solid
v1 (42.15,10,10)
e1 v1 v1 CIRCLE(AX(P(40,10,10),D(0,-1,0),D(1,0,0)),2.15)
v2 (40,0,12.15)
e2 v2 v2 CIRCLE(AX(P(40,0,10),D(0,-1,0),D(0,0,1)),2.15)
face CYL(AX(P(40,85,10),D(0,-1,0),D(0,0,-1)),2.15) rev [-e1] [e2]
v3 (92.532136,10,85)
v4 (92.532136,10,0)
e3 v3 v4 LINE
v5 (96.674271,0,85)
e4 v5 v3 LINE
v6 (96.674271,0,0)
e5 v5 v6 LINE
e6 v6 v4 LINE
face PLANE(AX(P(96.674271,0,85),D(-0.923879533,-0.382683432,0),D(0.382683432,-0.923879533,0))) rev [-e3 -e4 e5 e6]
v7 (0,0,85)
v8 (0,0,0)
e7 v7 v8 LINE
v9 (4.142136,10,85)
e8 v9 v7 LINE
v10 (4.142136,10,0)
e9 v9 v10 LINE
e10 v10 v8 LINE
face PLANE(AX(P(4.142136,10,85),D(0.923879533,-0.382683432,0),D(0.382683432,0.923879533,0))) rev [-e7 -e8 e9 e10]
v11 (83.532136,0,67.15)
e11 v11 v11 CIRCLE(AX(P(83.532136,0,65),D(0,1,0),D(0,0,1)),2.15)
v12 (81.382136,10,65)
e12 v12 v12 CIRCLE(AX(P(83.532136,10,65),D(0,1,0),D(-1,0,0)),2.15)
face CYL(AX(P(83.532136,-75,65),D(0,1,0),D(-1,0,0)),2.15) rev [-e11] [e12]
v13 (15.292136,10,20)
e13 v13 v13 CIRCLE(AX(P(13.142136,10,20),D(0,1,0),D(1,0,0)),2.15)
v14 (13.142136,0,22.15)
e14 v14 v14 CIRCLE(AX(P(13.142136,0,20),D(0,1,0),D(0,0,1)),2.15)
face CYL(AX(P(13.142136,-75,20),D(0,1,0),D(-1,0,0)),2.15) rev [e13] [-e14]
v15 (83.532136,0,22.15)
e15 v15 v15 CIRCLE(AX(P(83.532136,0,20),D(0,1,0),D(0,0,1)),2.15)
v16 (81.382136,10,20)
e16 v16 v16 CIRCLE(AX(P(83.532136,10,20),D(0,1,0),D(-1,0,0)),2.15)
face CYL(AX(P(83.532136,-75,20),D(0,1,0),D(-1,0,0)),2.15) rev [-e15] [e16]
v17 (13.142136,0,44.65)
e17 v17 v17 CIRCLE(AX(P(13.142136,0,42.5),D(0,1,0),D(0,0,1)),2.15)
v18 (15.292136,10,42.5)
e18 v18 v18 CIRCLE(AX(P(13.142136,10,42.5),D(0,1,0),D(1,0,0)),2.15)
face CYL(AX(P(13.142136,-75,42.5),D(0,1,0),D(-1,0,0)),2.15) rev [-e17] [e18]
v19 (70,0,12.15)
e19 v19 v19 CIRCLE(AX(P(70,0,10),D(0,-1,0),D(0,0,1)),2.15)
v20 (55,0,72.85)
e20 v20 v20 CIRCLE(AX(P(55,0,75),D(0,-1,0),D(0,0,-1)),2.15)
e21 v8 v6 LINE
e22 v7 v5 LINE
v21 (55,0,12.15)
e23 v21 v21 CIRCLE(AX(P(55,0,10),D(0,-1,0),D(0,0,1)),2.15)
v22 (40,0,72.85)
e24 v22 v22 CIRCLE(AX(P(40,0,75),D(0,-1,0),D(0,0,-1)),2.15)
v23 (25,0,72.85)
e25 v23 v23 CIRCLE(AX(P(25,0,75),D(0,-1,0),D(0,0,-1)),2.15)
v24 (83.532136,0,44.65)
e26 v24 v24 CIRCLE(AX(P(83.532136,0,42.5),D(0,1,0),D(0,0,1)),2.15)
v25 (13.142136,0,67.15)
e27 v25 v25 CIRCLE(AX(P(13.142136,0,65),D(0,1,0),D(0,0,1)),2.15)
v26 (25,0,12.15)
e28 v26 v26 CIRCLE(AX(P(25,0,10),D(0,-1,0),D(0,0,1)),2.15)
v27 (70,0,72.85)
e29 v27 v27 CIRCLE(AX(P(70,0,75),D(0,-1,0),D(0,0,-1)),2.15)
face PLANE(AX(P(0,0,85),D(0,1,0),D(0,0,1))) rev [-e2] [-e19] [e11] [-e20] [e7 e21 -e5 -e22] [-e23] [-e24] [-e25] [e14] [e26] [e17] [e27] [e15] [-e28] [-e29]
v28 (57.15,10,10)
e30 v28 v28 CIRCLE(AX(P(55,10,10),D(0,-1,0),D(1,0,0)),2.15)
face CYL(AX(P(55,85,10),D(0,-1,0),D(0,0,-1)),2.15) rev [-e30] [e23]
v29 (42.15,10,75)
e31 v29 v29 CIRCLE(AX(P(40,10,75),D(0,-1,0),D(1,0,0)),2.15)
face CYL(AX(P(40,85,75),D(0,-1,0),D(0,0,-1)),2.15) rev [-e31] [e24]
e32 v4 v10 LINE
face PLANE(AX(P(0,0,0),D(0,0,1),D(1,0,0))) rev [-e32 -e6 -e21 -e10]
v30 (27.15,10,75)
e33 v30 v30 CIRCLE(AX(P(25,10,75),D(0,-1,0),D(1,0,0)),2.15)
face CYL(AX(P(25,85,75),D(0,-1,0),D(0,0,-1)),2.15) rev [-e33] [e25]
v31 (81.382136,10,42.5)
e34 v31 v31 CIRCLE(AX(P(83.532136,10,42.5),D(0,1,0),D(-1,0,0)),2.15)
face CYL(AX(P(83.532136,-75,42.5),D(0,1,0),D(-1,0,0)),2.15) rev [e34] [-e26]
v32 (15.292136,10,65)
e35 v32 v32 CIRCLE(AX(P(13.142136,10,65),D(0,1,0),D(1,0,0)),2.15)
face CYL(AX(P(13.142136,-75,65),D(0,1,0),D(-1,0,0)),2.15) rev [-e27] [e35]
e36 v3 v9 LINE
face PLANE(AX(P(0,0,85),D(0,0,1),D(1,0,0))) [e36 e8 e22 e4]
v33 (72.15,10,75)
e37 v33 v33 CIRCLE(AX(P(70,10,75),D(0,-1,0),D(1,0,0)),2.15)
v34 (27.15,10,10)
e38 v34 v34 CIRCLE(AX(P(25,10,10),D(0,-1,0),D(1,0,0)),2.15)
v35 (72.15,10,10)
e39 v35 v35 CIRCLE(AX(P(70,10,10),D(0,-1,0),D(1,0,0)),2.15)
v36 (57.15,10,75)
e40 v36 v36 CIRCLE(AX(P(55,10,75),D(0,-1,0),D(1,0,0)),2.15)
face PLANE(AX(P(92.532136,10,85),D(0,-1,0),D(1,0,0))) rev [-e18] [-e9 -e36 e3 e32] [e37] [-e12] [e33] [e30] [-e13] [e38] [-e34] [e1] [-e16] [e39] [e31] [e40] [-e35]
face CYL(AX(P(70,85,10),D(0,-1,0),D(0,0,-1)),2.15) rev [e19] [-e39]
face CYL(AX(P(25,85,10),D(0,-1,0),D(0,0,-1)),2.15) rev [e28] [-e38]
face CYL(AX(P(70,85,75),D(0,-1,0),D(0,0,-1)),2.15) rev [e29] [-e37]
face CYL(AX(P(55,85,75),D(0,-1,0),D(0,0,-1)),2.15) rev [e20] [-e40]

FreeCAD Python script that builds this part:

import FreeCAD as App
import Part
import Sketcher
from FreeCAD import Vector
Q = App.Units.Quantity


def add_polygon(sketch, points):
    """Adds a closed chain of lines whose ends are joined by coincident constraints."""
    first, n = sketch.GeometryCount, len(points)
    for a, b in zip(points, points[1:] + points[:1]):
        sketch.addGeometry(Part.LineSegment(App.Vector(*a, 0), App.Vector(*b, 0)), False)
    for i in range(n):
        sketch.addConstraint(Sketcher.Constraint("Coincident", first + i, 2, first + (i + 1) % n, 1))

doc = App.newDocument("Part")
body = doc.addObject("PartDesign::Body", "Body")

# Sketch on XY plane
sketch1 = body.newObject("Sketcher::SketchObject", "Sketch")
sketch1.AttachmentSupport = (doc.getObject("XY_Plane"), [""])
sketch1.MapMode = "FlatFace"
add_polygon(sketch1, [(0, 0), (97, 0), (93, 10), (4, 10)])  # lines 0-3
sketch1.addConstraint([
    Sketcher.Constraint("Horizontal", 0),
    Sketcher.Constraint("Horizontal", 2),
    Sketcher.Constraint("Coincident", 3, 2, -1, 1),
    Sketcher.Constraint("Equal", 1, 3),
    Sketcher.Constraint("DistanceY", -1, 1, 1, 2, Q("10 mm")),
    Sketcher.Constraint("Angle", 1, Q("112.5 deg")),
    Sketcher.Constraint("DistanceX", 2, 2, 2, 1, Q("88.39 mm")),
])
pad1 = body.newObject("PartDesign::Pad", "Pad")
pad1.Profile = sketch1
pad1.Length = 85

# Sketch on XZ plane
sketch2 = body.newObject("Sketcher::SketchObject", "Sketch001")
sketch2.AttachmentSupport = (doc.getObject("XZ_Plane"), [""])
sketch2.MapMode = "FlatFace"
sketch2.addGeometry([
    Part.Circle(Vector(25, 75, 0), Vector(0, 0, 1), 2.1),
    Part.Circle(Vector(25, 10, 0), Vector(0, 0, 1), 2.1),
], False)
sketch2.addConstraint([
    Sketcher.Constraint("Equal", 0, 1),
    Sketcher.Constraint("Vertical", 0, 3, 1, 3),
    Sketcher.Constraint("Diameter", 0, Q("4.3 mm")),
    Sketcher.Constraint("DistanceX", -1, 1, 0, 3, Q("25 mm")),
    Sketcher.Constraint("DistanceY", -1, 1, 0, 3, Q("75 mm")),
    Sketcher.Constraint("DistanceY", -1, 1, 1, 3, Q("10 mm")),
])
pocket1 = body.newObject("PartDesign::Pocket", "Pocket")
pocket1.Profile = sketch2
pocket1.Length = 85
doc.recompute()

linearpattern = body.newObject("PartDesign::LinearPattern", "LinearPattern")
linearpattern.Originals = [pocket1]
linearpattern.Direction = (doc.getObject("X_Axis"), [""])
linearpattern.Mode = "offset"
linearpattern.Offset = 15
linearpattern.Occurrences = 4
body.Tip = linearpattern

# Sketch on XZ plane
sketch3 = body.newObject("Sketcher::SketchObject", "Sketch002")
sketch3.AttachmentSupport = (doc.getObject("XZ_Plane"), [""])
sketch3.MapMode = "FlatFace"
sketch3.AttachmentOffset = App.Placement(Vector(0, 0, -10), App.Rotation())
sketch3.addGeometry([
    Part.Circle(Vector(83.5, 20, 0), Vector(0, 0, 1), 2.1),  # 0
    Part.Circle(Vector(83.5, 42.5, 0), Vector(0, 0, 1), 2.1),  # 1
    Part.Circle(Vector(83.5, 65, 0), Vector(0, 0, 1), 2.1),  # 2
    Part.Circle(Vector(13.1, 65, 0), Vector(0, 0, 1), 2.1),  # 3
    Part.Circle(Vector(13.1, 42.5, 0), Vector(0, 0, 1), 2.1),  # 4
    Part.Circle(Vector(13.1, 20, 0), Vector(0, 0, 1), 2.1),  # 5
], False)
sketch3.addConstraint([
    Sketcher.Constraint("Equal", 0, 1),
    Sketcher.Constraint("Equal", 1, 2),
    Sketcher.Constraint("Equal", 2, 3),
    Sketcher.Constraint("Equal", 3, 4),
    Sketcher.Constraint("Equal", 4, 5),
    Sketcher.Constraint("Horizontal", 2, 3, 3, 3),
    Sketcher.Constraint("Horizontal", 1, 3, 4, 3),
    Sketcher.Constraint("Horizontal", 0, 3, 5, 3),
    Sketcher.Constraint("Vertical", 0, 3, 1, 3),
    Sketcher.Constraint("Vertical", 1, 3, 2, 3),
    Sketcher.Constraint("Vertical", 3, 3, 4, 3),
    Sketcher.Constraint("Vertical", 4, 3, 5, 3),
    Sketcher.Constraint("Diameter", 0, Q("4.3 mm")),
    Sketcher.Constraint("DistanceY", -1, 1, 0, 3, Q("20 mm")),
    Sketcher.Constraint("DistanceY", -1, 1, 2, 3, Q("65 mm")),
    Sketcher.Constraint("DistanceY", -1, 1, 1, 3, Q("42.5 mm")),
    Sketcher.Constraint("DistanceX", 3, 3, 2, 3, Q("70.39 mm")),
    Sketcher.Constraint("DistanceX", -1, 1, 0, 3, Q("83.532136 mm")),
])
pocket2 = body.newObject("PartDesign::Pocket", "Pocket001")
pocket2.Profile = sketch3
pocket2.Length = 85
pocket2.Reversed = True

doc.recompute()
